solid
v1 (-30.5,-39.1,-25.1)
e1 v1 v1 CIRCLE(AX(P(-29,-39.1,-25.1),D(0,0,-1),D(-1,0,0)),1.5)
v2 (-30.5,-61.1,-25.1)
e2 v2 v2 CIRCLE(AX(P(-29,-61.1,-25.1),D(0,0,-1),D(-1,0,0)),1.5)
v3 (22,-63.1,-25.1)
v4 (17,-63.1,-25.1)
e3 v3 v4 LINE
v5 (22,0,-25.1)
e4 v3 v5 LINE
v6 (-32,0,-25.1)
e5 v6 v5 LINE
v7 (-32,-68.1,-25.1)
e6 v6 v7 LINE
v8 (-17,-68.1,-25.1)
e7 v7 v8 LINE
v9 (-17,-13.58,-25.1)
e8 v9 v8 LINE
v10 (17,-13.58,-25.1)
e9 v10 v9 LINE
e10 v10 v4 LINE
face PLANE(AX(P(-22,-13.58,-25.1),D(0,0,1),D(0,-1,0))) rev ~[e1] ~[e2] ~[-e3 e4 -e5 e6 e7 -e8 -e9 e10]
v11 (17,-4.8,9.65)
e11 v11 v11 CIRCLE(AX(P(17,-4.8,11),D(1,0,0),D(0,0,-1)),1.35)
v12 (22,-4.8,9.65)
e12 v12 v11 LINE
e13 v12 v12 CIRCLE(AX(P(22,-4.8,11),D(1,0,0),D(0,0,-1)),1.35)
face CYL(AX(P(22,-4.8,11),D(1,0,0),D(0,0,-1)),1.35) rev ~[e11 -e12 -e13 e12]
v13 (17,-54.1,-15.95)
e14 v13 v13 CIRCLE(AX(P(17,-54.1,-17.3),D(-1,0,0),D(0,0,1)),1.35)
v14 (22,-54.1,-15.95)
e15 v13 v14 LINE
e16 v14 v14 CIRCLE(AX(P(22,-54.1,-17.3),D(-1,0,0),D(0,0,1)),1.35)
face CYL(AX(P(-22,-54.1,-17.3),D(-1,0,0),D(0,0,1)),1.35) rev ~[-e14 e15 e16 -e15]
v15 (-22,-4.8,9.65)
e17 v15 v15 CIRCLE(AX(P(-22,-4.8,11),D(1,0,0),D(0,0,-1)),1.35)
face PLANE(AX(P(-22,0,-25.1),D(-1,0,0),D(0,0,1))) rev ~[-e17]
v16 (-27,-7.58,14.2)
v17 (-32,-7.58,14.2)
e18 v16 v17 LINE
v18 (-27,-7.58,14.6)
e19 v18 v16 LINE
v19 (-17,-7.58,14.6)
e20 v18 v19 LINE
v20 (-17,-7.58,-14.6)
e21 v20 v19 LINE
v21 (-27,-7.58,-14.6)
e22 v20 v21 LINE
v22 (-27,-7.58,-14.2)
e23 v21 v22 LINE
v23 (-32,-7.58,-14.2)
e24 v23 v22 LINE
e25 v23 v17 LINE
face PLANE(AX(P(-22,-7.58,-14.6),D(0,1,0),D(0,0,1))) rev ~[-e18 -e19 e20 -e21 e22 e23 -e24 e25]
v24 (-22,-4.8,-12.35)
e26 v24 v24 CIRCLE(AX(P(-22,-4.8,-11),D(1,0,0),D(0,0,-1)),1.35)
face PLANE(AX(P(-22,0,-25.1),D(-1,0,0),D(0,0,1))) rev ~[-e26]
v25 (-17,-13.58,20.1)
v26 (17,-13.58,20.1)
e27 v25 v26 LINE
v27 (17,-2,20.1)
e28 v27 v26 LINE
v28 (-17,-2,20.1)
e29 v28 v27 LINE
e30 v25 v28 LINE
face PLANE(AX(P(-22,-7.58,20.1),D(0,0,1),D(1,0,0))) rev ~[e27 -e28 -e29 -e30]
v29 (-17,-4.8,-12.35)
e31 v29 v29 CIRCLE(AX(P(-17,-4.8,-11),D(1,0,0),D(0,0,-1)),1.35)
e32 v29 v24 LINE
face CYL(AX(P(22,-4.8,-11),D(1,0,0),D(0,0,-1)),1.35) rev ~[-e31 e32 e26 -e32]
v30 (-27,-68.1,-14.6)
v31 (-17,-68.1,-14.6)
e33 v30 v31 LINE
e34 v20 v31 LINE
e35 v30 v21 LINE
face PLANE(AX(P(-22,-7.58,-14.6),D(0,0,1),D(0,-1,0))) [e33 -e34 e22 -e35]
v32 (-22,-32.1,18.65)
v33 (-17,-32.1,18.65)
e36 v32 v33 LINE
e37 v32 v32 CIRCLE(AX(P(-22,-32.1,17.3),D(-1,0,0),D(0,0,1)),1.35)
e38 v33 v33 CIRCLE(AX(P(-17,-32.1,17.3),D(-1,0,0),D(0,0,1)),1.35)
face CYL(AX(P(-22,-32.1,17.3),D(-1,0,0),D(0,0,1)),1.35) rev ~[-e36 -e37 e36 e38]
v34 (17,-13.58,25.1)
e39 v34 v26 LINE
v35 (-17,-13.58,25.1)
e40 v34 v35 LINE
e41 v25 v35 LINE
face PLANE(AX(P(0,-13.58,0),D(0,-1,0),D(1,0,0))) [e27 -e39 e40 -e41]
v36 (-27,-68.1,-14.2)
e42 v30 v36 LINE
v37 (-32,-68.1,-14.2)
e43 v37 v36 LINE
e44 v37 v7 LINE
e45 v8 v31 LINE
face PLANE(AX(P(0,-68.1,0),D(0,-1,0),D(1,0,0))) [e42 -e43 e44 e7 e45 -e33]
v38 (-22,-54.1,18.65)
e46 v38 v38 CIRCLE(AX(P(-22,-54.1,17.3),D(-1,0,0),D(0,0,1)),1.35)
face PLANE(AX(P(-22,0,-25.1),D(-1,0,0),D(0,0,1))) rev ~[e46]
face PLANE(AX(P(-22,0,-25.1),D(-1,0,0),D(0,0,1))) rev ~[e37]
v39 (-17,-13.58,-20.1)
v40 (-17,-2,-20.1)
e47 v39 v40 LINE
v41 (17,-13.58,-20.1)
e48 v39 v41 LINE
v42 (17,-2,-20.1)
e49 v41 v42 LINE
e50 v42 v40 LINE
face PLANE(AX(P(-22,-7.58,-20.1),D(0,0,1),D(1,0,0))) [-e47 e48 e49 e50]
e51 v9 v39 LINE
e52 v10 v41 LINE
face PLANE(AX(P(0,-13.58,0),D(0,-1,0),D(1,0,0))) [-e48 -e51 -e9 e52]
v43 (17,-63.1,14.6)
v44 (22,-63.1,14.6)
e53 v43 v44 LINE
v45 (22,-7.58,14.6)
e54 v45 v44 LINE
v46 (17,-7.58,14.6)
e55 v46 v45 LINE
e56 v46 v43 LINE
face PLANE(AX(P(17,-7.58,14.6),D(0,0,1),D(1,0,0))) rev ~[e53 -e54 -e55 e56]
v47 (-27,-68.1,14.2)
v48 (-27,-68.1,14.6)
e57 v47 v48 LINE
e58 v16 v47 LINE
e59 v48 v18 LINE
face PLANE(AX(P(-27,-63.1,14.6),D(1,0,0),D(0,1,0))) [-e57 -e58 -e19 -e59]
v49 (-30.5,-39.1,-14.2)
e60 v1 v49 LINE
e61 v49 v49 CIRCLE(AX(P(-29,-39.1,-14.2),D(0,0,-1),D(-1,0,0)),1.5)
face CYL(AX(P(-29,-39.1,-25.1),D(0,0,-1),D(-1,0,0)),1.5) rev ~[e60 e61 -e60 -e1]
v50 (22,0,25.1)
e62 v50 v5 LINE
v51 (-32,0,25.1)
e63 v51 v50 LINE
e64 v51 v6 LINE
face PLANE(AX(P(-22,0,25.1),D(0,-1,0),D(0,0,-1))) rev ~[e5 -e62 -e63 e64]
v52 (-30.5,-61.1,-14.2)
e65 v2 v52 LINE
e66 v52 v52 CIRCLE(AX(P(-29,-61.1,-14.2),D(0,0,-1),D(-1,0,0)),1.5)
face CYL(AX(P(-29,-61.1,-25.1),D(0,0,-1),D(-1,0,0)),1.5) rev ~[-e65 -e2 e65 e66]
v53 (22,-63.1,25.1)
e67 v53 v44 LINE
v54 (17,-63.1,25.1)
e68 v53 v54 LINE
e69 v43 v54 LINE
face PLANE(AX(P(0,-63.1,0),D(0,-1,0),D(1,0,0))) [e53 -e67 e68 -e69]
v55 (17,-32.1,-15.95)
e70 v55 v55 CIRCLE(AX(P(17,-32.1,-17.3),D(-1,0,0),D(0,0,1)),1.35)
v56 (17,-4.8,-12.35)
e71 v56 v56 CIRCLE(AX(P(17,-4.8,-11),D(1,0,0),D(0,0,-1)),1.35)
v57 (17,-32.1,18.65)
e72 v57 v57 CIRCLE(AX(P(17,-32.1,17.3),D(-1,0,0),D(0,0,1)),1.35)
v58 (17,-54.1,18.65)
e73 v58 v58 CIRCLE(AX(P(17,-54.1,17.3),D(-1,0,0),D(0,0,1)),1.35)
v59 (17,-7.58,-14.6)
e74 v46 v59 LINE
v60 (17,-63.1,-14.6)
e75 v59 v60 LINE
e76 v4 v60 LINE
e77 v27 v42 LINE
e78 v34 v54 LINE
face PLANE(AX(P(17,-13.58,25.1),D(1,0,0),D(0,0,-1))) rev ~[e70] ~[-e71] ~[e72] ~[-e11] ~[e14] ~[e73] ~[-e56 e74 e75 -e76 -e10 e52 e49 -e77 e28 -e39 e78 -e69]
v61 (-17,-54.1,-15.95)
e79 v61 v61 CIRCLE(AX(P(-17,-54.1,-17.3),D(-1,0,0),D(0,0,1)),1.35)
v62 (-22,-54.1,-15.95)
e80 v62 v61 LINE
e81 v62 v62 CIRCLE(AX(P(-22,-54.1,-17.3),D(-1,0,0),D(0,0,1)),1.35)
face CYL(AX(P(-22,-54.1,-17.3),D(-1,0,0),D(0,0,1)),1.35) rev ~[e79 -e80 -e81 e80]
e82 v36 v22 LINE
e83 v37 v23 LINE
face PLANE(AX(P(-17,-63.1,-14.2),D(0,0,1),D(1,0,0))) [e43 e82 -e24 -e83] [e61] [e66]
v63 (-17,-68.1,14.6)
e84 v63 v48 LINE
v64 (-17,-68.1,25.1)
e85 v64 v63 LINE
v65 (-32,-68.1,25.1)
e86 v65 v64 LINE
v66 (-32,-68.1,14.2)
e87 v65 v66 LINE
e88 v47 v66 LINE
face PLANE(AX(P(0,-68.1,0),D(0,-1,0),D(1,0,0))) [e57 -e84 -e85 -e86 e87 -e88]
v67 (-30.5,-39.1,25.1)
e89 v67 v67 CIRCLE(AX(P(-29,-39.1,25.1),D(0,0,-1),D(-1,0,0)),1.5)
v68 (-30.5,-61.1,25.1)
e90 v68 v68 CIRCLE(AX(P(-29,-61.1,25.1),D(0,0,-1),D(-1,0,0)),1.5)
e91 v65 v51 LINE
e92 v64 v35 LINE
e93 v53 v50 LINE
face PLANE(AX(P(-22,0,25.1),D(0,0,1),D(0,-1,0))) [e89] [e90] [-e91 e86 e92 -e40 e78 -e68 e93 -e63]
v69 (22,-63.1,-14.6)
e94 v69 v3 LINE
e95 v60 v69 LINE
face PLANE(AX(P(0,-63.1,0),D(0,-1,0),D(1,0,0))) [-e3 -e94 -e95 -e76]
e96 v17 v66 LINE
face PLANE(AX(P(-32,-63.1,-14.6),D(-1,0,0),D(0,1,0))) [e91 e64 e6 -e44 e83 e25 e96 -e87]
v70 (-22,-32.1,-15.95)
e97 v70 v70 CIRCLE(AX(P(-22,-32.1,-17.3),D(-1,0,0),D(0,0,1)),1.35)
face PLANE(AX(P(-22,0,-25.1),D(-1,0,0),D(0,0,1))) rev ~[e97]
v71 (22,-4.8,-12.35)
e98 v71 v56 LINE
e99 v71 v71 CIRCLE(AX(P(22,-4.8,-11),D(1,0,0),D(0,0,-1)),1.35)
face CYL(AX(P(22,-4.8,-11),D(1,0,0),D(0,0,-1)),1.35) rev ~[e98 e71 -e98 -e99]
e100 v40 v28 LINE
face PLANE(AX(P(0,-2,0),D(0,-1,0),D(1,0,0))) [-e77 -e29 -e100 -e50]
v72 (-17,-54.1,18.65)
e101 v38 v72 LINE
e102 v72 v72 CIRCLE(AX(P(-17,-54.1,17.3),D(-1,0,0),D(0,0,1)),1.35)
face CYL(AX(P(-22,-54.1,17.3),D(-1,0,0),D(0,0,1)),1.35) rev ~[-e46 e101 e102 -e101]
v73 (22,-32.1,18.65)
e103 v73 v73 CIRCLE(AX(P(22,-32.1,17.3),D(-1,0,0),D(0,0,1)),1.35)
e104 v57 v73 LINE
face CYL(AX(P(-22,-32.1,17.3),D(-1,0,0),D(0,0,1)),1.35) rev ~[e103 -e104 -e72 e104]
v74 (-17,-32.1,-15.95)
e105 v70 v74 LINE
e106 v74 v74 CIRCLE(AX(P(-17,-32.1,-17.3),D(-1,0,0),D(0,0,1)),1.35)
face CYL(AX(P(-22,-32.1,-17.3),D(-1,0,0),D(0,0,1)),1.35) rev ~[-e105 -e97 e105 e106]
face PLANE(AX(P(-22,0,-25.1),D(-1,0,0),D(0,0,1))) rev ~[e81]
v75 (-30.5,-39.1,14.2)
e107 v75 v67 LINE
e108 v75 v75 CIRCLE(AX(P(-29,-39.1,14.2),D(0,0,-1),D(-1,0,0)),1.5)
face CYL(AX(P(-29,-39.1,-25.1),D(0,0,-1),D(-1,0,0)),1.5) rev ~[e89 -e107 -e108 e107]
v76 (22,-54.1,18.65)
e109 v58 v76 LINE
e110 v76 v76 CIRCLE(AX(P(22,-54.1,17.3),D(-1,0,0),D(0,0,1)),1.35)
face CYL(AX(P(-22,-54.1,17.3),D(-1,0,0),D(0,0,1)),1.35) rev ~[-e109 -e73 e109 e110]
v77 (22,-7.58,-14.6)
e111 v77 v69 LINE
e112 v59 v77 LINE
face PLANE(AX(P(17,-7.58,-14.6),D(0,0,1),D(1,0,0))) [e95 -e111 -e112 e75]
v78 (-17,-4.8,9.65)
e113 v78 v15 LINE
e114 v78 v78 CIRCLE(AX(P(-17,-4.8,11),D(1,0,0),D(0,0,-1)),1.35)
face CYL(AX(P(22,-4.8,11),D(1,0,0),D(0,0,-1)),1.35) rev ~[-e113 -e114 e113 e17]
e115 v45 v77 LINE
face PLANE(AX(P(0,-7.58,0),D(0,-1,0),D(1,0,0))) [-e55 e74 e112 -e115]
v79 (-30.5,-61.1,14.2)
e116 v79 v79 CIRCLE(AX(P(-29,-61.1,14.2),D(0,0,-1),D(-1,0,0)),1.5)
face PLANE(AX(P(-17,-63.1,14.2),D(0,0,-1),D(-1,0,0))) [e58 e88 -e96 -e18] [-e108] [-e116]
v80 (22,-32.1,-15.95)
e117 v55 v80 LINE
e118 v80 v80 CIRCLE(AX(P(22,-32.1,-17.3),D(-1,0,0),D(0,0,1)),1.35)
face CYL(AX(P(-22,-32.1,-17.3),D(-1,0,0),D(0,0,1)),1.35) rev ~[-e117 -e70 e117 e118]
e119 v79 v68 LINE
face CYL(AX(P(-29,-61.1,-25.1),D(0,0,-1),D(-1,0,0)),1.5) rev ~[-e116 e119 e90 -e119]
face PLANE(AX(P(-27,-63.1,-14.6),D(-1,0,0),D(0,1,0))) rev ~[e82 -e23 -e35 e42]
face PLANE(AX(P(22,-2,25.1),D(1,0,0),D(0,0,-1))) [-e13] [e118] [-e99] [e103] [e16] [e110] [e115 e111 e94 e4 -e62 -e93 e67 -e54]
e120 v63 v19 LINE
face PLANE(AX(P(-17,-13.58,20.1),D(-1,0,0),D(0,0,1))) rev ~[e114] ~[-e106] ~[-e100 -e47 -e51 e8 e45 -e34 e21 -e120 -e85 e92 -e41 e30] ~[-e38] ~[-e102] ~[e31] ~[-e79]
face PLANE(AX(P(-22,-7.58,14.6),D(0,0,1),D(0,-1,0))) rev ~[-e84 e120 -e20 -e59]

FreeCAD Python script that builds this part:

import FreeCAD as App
import Part
import Sketcher
from FreeCAD import Vector
Q = App.Units.Quantity

doc = App.newDocument("Part")
params = doc.addObject("Spreadsheet::Sheet", "Params")
for row, (alias, value) in enumerate([
    ("sketch1_width", "44 mm"),
    ("sketch1_height", "28 mm"),
    ("pad1_length", "5 mm"),
    ("sketch2_diameter", "3 mm"),
    ("pocket1_length", "60 mm"),
    ("sketch3_width", "44 mm"),
    ("sketch3_height", "50.2 mm"),
    ("pad2_length", "2 mm"),
    ("sketch4_width", "44 mm"),
    ("sketch4_height", "50.2 mm"),
    ("pad3_length", "5.58 mm"),
    ("sketch5_diameter", "2.7 mm"),
    ("pocket2_length", "90 mm"),
    ("sketch6_height", "5 mm"),
    ("sketch6_width", "44 mm"),
    ("pad4_length", "6 mm"),
    ("sketch7_height", "5.5 mm"),
    ("sketch7_width", "5 mm"),
    ("pad5_length", "55.52 mm"),
    ("sketch8_width", "5 mm"),
    ("pad6_length", "49.52 mm"),
    ("sketch9_diameter", "2.7 mm"),
    ("pocket3_length", "49.52 mm"),
    ("sketch10_width", "5 mm"),
    ("sketch10_height", "28 mm"),
    ("pocket4_length", "80 mm"),
    ("sketch11_width", "63.1 mm"),
    ("sketch11_height", "10.5 mm"),
    ("sketch11_height2", "29.2 mm"),
    ("sketch11_width2", "55.52 mm"),
    ("pad7_length", "10 mm"),
    ("sketch12_width", "5 mm"),
    ("sketch12_height", "55.52 mm"),
    ("pad8_length", "0.4 mm"),
    ("sketch13_width", "5 mm"),
    ("sketch13_height", "55.52 mm"),
    ("pad9_length", "0.4 mm"),
    ("sketch14_diameter", "3 mm"),
    ("pocket5_length", "100 mm"),
    ("sketch15_width", "5 mm"),
    ("sketch15_width2", "15 mm"),
    ("sketch15_height", "10.9 mm"),
    ("sketch15_height2", "10.5 mm"),
    ("pad10_length", "5 mm"),
], start=1):
    params.set(f"A{row}", alias)
    params.set(f"B{row}", "=" + value)
    params.setAlias(f"B{row}", alias)

body = doc.addObject("PartDesign::Body", "Body")

# Sketch on XZ plane
sketch1 = doc.addObject("Sketcher::SketchObject", "Sketch")
body.addObject(sketch1)
sketch1.AttachmentSupport = (doc.XZ_Plane, [""])
sketch1.MapMode = "FlatFace"
sketch1.addGeometry([
    Part.LineSegment(Vector(22, -14, 0), Vector(-22, -14, 0)),
    Part.LineSegment(Vector(-22, -14, 0), Vector(-22, 14, 0)),
    Part.LineSegment(Vector(-22, 14, 0), Vector(22, 14, 0)),
    Part.LineSegment(Vector(22, 14, 0), Vector(22, -14, 0)),
], False)
sketch1.addConstraint([
    Sketcher.Constraint("Coincident", 0, 2, 1, 1),
    Sketcher.Constraint("Coincident", 1, 2, 2, 1),
    Sketcher.Constraint("Coincident", 2, 2, 3, 1),
    Sketcher.Constraint("Coincident", 3, 2, 0, 1),
    Sketcher.Constraint("Horizontal", 0),
    Sketcher.Constraint("Vertical", 1),
    Sketcher.Constraint("Horizontal", 2),
    Sketcher.Constraint("Vertical", 3),
    Sketcher.Constraint("Symmetric", 0, 2, 2, 2, -1, 1),
    Sketcher.Constraint("DistanceX", 0, 2, 0, 1, Q("44 mm")),
    Sketcher.Constraint("DistanceY", 1, 1, 1, 2, Q("28 mm")),
])
sketch1.setExpression("Constraints[9]", "Params.sketch1_width")
sketch1.setExpression("Constraints[10]", "Params.sketch1_height")
pad1 = doc.addObject("PartDesign::Pad", "Pad")
body.addObject(pad1)
pad1.Profile = sketch1
pad1.setExpression("Length", "Params.pad1_length")
pad1.Reversed = True

# Sketch on XY plane
sketch2 = doc.addObject("Sketcher::SketchObject", "Sketch001")
body.addObject(sketch2)
sketch2.AttachmentSupport = (doc.XY_Plane, [""])
sketch2.MapMode = "FlatFace"
sketch2.AttachmentOffset = App.Placement(Vector(0, 0, 14), App.Rotation())
sketch2.addGeometry([
    Part.Circle(Vector(11, 3, 0), Vector(0, 0, 1), 1.5),
    Part.Circle(Vector(-11, 3, 0), Vector(0, 0, 1), 1.5),
], False)
sketch2.addConstraint([
    Sketcher.Constraint("Equal", 0, 1),
    Sketcher.Constraint("Symmetric", 0, 3, 1, 3, -2),
    Sketcher.Constraint("Diameter", 0, Q("3 mm")),
    Sketcher.Constraint("DistanceX", -1, 1, 0, 3, Q("11 mm")),
    Sketcher.Constraint("DistanceY", -1, 1, 0, 3, Q("3 mm")),
])
sketch2.setExpression("Constraints[2]", "Params.sketch2_diameter")
pocket1 = doc.addObject("PartDesign::Pocket", "Pocket")
body.addObject(pocket1)
pocket1.Profile = sketch2
pocket1.setExpression("Length", "Params.pocket1_length")

# Sketch on XZ plane
sketch3 = doc.addObject("Sketcher::SketchObject", "Sketch002")
body.addObject(sketch3)
sketch3.AttachmentSupport = (doc.XZ_Plane, [""])
sketch3.MapMode = "FlatFace"
sketch3.addGeometry([
    Part.LineSegment(Vector(-22, 25, 0), Vector(-22, -25, 0)),
    Part.LineSegment(Vector(-22, -25, 0), Vector(22, -25, 0)),
    Part.LineSegment(Vector(22, -25, 0), Vector(22, 25, 0)),
    Part.LineSegment(Vector(22, 25, 0), Vector(-22, 25, 0)),
], False)
sketch3.addConstraint([
    Sketcher.Constraint("Coincident", 0, 2, 1, 1),
    Sketcher.Constraint("Coincident", 1, 2, 2, 1),
    Sketcher.Constraint("Coincident", 2, 2, 3, 1),
    Sketcher.Constraint("Coincident", 3, 2, 0, 1),
    Sketcher.Constraint("Vertical", 0),
    Sketcher.Constraint("Horizontal", 1),
    Sketcher.Constraint("Vertical", 2),
    Sketcher.Constraint("Horizontal", 3),
    Sketcher.Constraint("Symmetric", 0, 2, 2, 2, -1, 1),
    Sketcher.Constraint("DistanceX", 1, 1, 1, 2, Q("44 mm")),
    Sketcher.Constraint("DistanceY", 0, 2, 0, 1, Q("50.2 mm")),
])
sketch3.setExpression("Constraints[9]", "Params.sketch3_width")
sketch3.setExpression("Constraints[10]", "Params.sketch3_height")
pad2 = doc.addObject("PartDesign::Pad", "Pad001")
body.addObject(pad2)
pad2.Profile = sketch3
pad2.setExpression("Length", "Params.pad2_length")

# Sketch on XZ plane
sketch4 = doc.addObject("Sketcher::SketchObject", "Sketch003")
body.addObject(sketch4)
sketch4.AttachmentSupport = (doc.XZ_Plane, [""])
sketch4.MapMode = "FlatFace"
sketch4.AttachmentOffset = App.Placement(Vector(0, 0, 2), App.Rotation())
sketch4.addGeometry([
    Part.LineSegment(Vector(22, 25, 0), Vector(-22, 25, 0)),  # 0
    Part.LineSegment(Vector(-22, 25, 0), Vector(-22, -25, 0)),  # 1
    Part.LineSegment(Vector(-22, -25, 0), Vector(22, -25, 0)),  # 2
    Part.LineSegment(Vector(22, -25, 0), Vector(22, 25, 0)),  # 3
    Part.LineSegment(Vector(-17, -20, 0), Vector(-17, 20, 0)),  # 4
    Part.LineSegment(Vector(-17, 20, 0), Vector(17, 20, 0)),  # 5
    Part.LineSegment(Vector(17, 20, 0), Vector(17, -20, 0)),  # 6
    Part.LineSegment(Vector(17, -20, 0), Vector(-17, -20, 0)),  # 7
], False)
sketch4.addConstraint([
    Sketcher.Constraint("Coincident", 0, 2, 1, 1),
    Sketcher.Constraint("Coincident", 1, 2, 2, 1),
    Sketcher.Constraint("Coincident", 2, 2, 3, 1),
    Sketcher.Constraint("Coincident", 3, 2, 0, 1),
    Sketcher.Constraint("Coincident", 4, 2, 5, 1),
    Sketcher.Constraint("Coincident", 5, 2, 6, 1),
    Sketcher.Constraint("Coincident", 6, 2, 7, 1),
    Sketcher.Constraint("Coincident", 7, 2, 4, 1),
    Sketcher.Constraint("Horizontal", 0),
    Sketcher.Constraint("Vertical", 1),
    Sketcher.Constraint("Horizontal", 2),
    Sketcher.Constraint("Vertical", 3),
    Sketcher.Constraint("Vertical", 4),
    Sketcher.Constraint("Horizontal", 5),
    Sketcher.Constraint("Vertical", 6),
    Sketcher.Constraint("Horizontal", 7),
    Sketcher.Constraint("Symmetric", 0, 2, 2, 2, -1, 1),
    Sketcher.Constraint("Symmetric", 4, 2, 6, 2, -1, 1),
    Sketcher.Constraint("DistanceX", 0, 2, 4, 2, Q("5 mm")),
    Sketcher.Constraint("DistanceY", 4, 2, 0, 2, Q("5 mm")),
    Sketcher.Constraint("DistanceX", 0, 2, 0, 1, Q("44 mm")),
    Sketcher.Constraint("DistanceY", 1, 2, 1, 1, Q("50.2 mm")),
])
sketch4.setExpression("Constraints[20]", "Params.sketch4_width")
sketch4.setExpression("Constraints[21]", "Params.sketch4_height")
pad3 = doc.addObject("PartDesign::Pad", "Pad002")
body.addObject(pad3)
pad3.Profile = sketch4
pad3.setExpression("Length", "Params.pad3_length")

# Sketch on YZ plane
sketch5 = doc.addObject("Sketcher::SketchObject", "Sketch004")
body.addObject(sketch5)
sketch5.AttachmentSupport = (doc.YZ_Plane, [""])
sketch5.MapMode = "FlatFace"
sketch5.AttachmentOffset = App.Placement(Vector(0, 0, 22), App.Rotation())
sketch5.addGeometry([
    Part.Circle(Vector(-4.8, -11, 0), Vector(0, 0, 1), 1.4),
    Part.Circle(Vector(-4.8, 11, 0), Vector(0, 0, 1), 1.4),
], False)
sketch5.addConstraint([
    Sketcher.Constraint("Equal", 0, 1),
    Sketcher.Constraint("Symmetric", 0, 3, 1, 3, -1),
    Sketcher.Constraint("Diameter", 0, Q("2.7 mm")),
    Sketcher.Constraint("DistanceY", 0, 3, -1, 1, Q("11 mm")),
    Sketcher.Constraint("DistanceX", 0, 3, -1, 1, Q("4.8 mm")),
])
sketch5.setExpression("Constraints[2]", "Params.sketch5_diameter")
pocket2 = doc.addObject("PartDesign::Pocket", "Pocket001")
body.addObject(pocket2)
pocket2.Profile = sketch5
pocket2.setExpression("Length", "Params.pocket2_length")

# Sketch on XZ plane
sketch6 = doc.addObject("Sketcher::SketchObject", "Sketch005")
body.addObject(sketch6)
sketch6.AttachmentSupport = (doc.XZ_Plane, [""])
sketch6.MapMode = "FlatFace"
sketch6.AttachmentOffset = App.Placement(Vector(0, 0, 7.58), App.Rotation())
sketch6.addGeometry([
    Part.LineSegment(Vector(-22, -25, 0), Vector(22, -25, 0)),  # 0
    Part.LineSegment(Vector(22, -25, 0), Vector(22, -20, 0)),  # 1
    Part.LineSegment(Vector(22, -20, 0), Vector(-22, -20, 0)),  # 2
    Part.LineSegment(Vector(-22, -20, 0), Vector(-22, -25, 0)),  # 3
    Part.LineSegment(Vector(22, 20, 0), Vector(22, 25, 0)),  # 4
    Part.LineSegment(Vector(22, 25, 0), Vector(-22, 25, 0)),  # 5
    Part.LineSegment(Vector(-22, 25, 0), Vector(-22, 20, 0)),  # 6
    Part.LineSegment(Vector(-22, 20, 0), Vector(22, 20, 0)),  # 7
], False)
sketch6.addConstraint([
    Sketcher.Constraint("Coincident", 0, 2, 1, 1),
    Sketcher.Constraint("Coincident", 1, 2, 2, 1),
    Sketcher.Constraint("Coincident", 2, 2, 3, 1),
    Sketcher.Constraint("Coincident", 3, 2, 0, 1),
    Sketcher.Constraint("Coincident", 4, 2, 5, 1),
    Sketcher.Constraint("Coincident", 5, 2, 6, 1),
    Sketcher.Constraint("Coincident", 6, 2, 7, 1),
    Sketcher.Constraint("Coincident", 7, 2, 4, 1),
    Sketcher.Constraint("Horizontal", 0),
    Sketcher.Constraint("Vertical", 1),
    Sketcher.Constraint("Horizontal", 2),
    Sketcher.Constraint("Vertical", 3),
    Sketcher.Constraint("Vertical", 4),
    Sketcher.Constraint("Horizontal", 5),
    Sketcher.Constraint("Vertical", 6),
    Sketcher.Constraint("Horizontal", 7),
    Sketcher.Constraint("Symmetric", 3, 2, 4, 2, -1, 1),
    Sketcher.Constraint("Symmetric", 1, 2, 6, 2, -1, 1),
    Sketcher.Constraint("Vertical", 1, 2, 4, 2),
    Sketcher.Constraint("DistanceY", 1, 1, 1, 2, Q("5 mm")),
    Sketcher.Constraint("DistanceX", 0, 1, 0, 2, Q("44 mm")),
    Sketcher.Constraint("DistanceY", 0, 2, -1, 1, Q("25.1 mm")),
])
sketch6.setExpression("Constraints[19]", "Params.sketch6_height")
sketch6.setExpression("Constraints[20]", "Params.sketch6_width")
pad4 = doc.addObject("PartDesign::Pad", "Pad003")
body.addObject(pad4)
pad4.Profile = sketch6
pad4.setExpression("Length", "Params.pad4_length")

# Sketch on XZ plane
sketch7 = doc.addObject("Sketcher::SketchObject", "Sketch006")
body.addObject(sketch7)
sketch7.AttachmentSupport = (doc.XZ_Plane, [""])
sketch7.MapMode = "FlatFace"
sketch7.AttachmentOffset = App.Placement(Vector(0, 0, 7.58), App.Rotation())
sketch7.addGeometry([
    Part.LineSegment(Vector(-22, -20, 0), Vector(-17, -20, 0)),  # 0
    Part.LineSegment(Vector(-17, -20, 0), Vector(-17, -15, 0)),  # 1
    Part.LineSegment(Vector(-17, -15, 0), Vector(-22, -15, 0)),  # 2
    Part.LineSegment(Vector(-22, -15, 0), Vector(-22, -20, 0)),  # 3
    Part.LineSegment(Vector(17, 20, 0), Vector(17, 15, 0)),  # 4
    Part.LineSegment(Vector(17, 15, 0), Vector(22, 15, 0)),  # 5
    Part.LineSegment(Vector(22, 15, 0), Vector(22, 20, 0)),  # 6
    Part.LineSegment(Vector(22, 20, 0), Vector(17, 20, 0)),  # 7
    Part.LineSegment(Vector(17, -20, 0), Vector(22, -20, 0)),  # 8
    Part.LineSegment(Vector(22, -20, 0), Vector(22, -15, 0)),  # 9
    Part.LineSegment(Vector(22, -15, 0), Vector(17, -15, 0)),  # 10
    Part.LineSegment(Vector(17, -15, 0), Vector(17, -20, 0)),  # 11
    Part.LineSegment(Vector(-17, 15, 0), Vector(-17, 20, 0)),  # 12
    Part.LineSegment(Vector(-17, 20, 0), Vector(-22, 20, 0)),  # 13
    Part.LineSegment(Vector(-22, 20, 0), Vector(-22, 15, 0)),  # 14
    Part.LineSegment(Vector(-22, 15, 0), Vector(-17, 15, 0)),  # 15
], False)
sketch7.addConstraint([
    Sketcher.Constraint("Coincident", 0, 2, 1, 1),
    Sketcher.Constraint("Coincident", 1, 2, 2, 1),
    Sketcher.Constraint("Coincident", 2, 2, 3, 1),
    Sketcher.Constraint("Coincident", 3, 2, 0, 1),
    Sketcher.Constraint("Coincident", 4, 2, 5, 1),
    Sketcher.Constraint("Coincident", 5, 2, 6, 1),
    Sketcher.Constraint("Coincident", 6, 2, 7, 1),
    Sketcher.Constraint("Coincident", 7, 2, 4, 1),
    Sketcher.Constraint("Coincident", 8, 2, 9, 1),
    Sketcher.Constraint("Coincident", 9, 2, 10, 1),
    Sketcher.Constraint("Coincident", 10, 2, 11, 1),
    Sketcher.Constraint("Coincident", 11, 2, 8, 1),
    Sketcher.Constraint("Coincident", 12, 2, 13, 1),
    Sketcher.Constraint("Coincident", 13, 2, 14, 1),
    Sketcher.Constraint("Coincident", 14, 2, 15, 1),
    Sketcher.Constraint("Coincident", 15, 2, 12, 1),
    Sketcher.Constraint("Horizontal", 0),
    Sketcher.Constraint("Vertical", 1),
    Sketcher.Constraint("Horizontal", 2),
    Sketcher.Constraint("Vertical", 3),
    Sketcher.Constraint("Vertical", 4),
    Sketcher.Constraint("Horizontal", 5),
    Sketcher.Constraint("Vertical", 6),
    Sketcher.Constraint("Horizontal", 7),
    Sketcher.Constraint("Horizontal", 8),
    Sketcher.Constraint("Vertical", 9),
    Sketcher.Constraint("Horizontal", 10),
    Sketcher.Constraint("Vertical", 11),
    Sketcher.Constraint("Vertical", 12),
    Sketcher.Constraint("Horizontal", 13),
    Sketcher.Constraint("Vertical", 14),
    Sketcher.Constraint("Horizontal", 15),
    Sketcher.Constraint("Symmetric", 1, 2, 4, 2, -1, 1),
    Sketcher.Constraint("Symmetric", 3, 2, 6, 2, -1, 1),
    Sketcher.Constraint("Symmetric", 11, 2, 12, 2, -1, 1),
    Sketcher.Constraint("Symmetric", 9, 2, 14, 2, -1, 1),
    Sketcher.Constraint("Symmetric", 3, 2, 8, 2, -2),
    Sketcher.Constraint("Symmetric", 1, 2, 10, 2, -2),
    Sketcher.Constraint("DistanceY", 1, 1, 1, 2, Q("5.5 mm")),
    Sketcher.Constraint("DistanceX", 0, 1, 0, 2, Q("5 mm")),
    Sketcher.Constraint("DistanceX", 0, 2, -1, 1, Q("17 mm")),
    Sketcher.Constraint("DistanceY", 0, 2, -1, 1, Q("20.1 mm")),
])
sketch7.setExpression("Constraints[38]", "Params.sketch7_height")
sketch7.setExpression("Constraints[39]", "Params.sketch7_width")
pad5 = doc.addObject("PartDesign::Pad", "Pad004")
body.addObject(pad5)
pad5.Profile = sketch7
pad5.setExpression("Length", "Params.pad5_length")

# Sketch on XZ plane
sketch8 = doc.addObject("Sketcher::SketchObject", "Sketch007")
body.addObject(sketch8)
sketch8.AttachmentSupport = (doc.XZ_Plane, [""])
sketch8.MapMode = "FlatFace"
sketch8.AttachmentOffset = App.Placement(Vector(0, 0, 13.58), App.Rotation())
sketch8.addGeometry([
    Part.LineSegment(Vector(-17, -20, 0), Vector(-22, -20, 0)),  # 0
    Part.LineSegment(Vector(-22, -20, 0), Vector(-22, -25, 0)),  # 1
    Part.LineSegment(Vector(-22, -25, 0), Vector(-17, -25, 0)),  # 2
    Part.LineSegment(Vector(-17, -25, 0), Vector(-17, -20, 0)),  # 3
    Part.LineSegment(Vector(-17, 20, 0), Vector(-17, 25, 0)),  # 4
    Part.LineSegment(Vector(-17, 25, 0), Vector(-22, 25, 0)),  # 5
    Part.LineSegment(Vector(-22, 25, 0), Vector(-22, 20, 0)),  # 6
    Part.LineSegment(Vector(-22, 20, 0), Vector(-17, 20, 0)),  # 7
    Part.LineSegment(Vector(17, 25, 0), Vector(17, 20, 0)),  # 8
    Part.LineSegment(Vector(17, 20, 0), Vector(22, 20, 0)),  # 9
    Part.LineSegment(Vector(22, 20, 0), Vector(22, 25, 0)),  # 10
    Part.LineSegment(Vector(22, 25, 0), Vector(17, 25, 0)),  # 11
    Part.LineSegment(Vector(22, -20, 0), Vector(17, -20, 0)),  # 12
    Part.LineSegment(Vector(17, -20, 0), Vector(17, -25, 0)),  # 13
    Part.LineSegment(Vector(17, -25, 0), Vector(22, -25, 0)),  # 14
    Part.LineSegment(Vector(22, -25, 0), Vector(22, -20, 0)),  # 15
], False)
sketch8.addConstraint([
    Sketcher.Constraint("Coincident", 0, 2, 1, 1),
    Sketcher.Constraint("Coincident", 1, 2, 2, 1),
    Sketcher.Constraint("Coincident", 2, 2, 3, 1),
    Sketcher.Constraint("Coincident", 3, 2, 0, 1),
    Sketcher.Constraint("Coincident", 4, 2, 5, 1),
    Sketcher.Constraint("Coincident", 5, 2, 6, 1),
    Sketcher.Constraint("Coincident", 6, 2, 7, 1),
    Sketcher.Constraint("Coincident", 7, 2, 4, 1),
    Sketcher.Constraint("Coincident", 8, 2, 9, 1),
    Sketcher.Constraint("Coincident", 9, 2, 10, 1),
    Sketcher.Constraint("Coincident", 10, 2, 11, 1),
    Sketcher.Constraint("Coincident", 11, 2, 8, 1),
    Sketcher.Constraint("Coincident", 12, 2, 13, 1),
    Sketcher.Constraint("Coincident", 13, 2, 14, 1),
    Sketcher.Constraint("Coincident", 14, 2, 15, 1),
    Sketcher.Constraint("Coincident", 15, 2, 12, 1),
    Sketcher.Constraint("Horizontal", 0),
    Sketcher.Constraint("Vertical", 1),
    Sketcher.Constraint("Horizontal", 2),
    Sketcher.Constraint("Vertical", 3),
    Sketcher.Constraint("Vertical", 4),
    Sketcher.Constraint("Horizontal", 5),
    Sketcher.Constraint("Vertical", 6),
    Sketcher.Constraint("Horizontal", 7),
    Sketcher.Constraint("Vertical", 8),
    Sketcher.Constraint("Horizontal", 9),
    Sketcher.Constraint("Vertical", 10),
    Sketcher.Constraint("Horizontal", 11),
    Sketcher.Constraint("Horizontal", 12),
    Sketcher.Constraint("Vertical", 13),
    Sketcher.Constraint("Horizontal", 14),
    Sketcher.Constraint("Vertical", 15),
    Sketcher.Constraint("Symmetric", 3, 2, 8, 2, -1, 1),
    Sketcher.Constraint("Symmetric", 1, 2, 10, 2, -1, 1),
    Sketcher.Constraint("Symmetric", 7, 2, 12, 2, -1, 1),
    Sketcher.Constraint("Symmetric", 5, 2, 14, 2, -1, 1),
    Sketcher.Constraint("Symmetric", 7, 2, 8, 2, -2),
    Sketcher.Constraint("Symmetric", 5, 2, 10, 2, -2),
    Sketcher.Constraint("Equal", 14, 1),
    Sketcher.Constraint("DistanceX", 0, 2, 0, 1, Q("5 mm")),
    Sketcher.Constraint("DistanceX", 0, 2, -1, 1, Q("22 mm")),
    Sketcher.Constraint("DistanceY", 0, 2, -1, 1, Q("20.1 mm")),
])
sketch8.setExpression("Constraints[39]", "Params.sketch8_width")
pad6 = doc.addObject("PartDesign::Pad", "Pad005")
body.addObject(pad6)
pad6.Profile = sketch8
pad6.setExpression("Length", "Params.pad6_length")

# Sketch on YZ plane
sketch9 = doc.addObject("Sketcher::SketchObject", "Sketch008")
body.addObject(sketch9)
sketch9.AttachmentSupport = (doc.YZ_Plane, [""])
sketch9.MapMode = "FlatFace"
sketch9.AttachmentOffset = App.Placement(Vector(0, 0, -22), App.Rotation())
sketch9.addGeometry([
    Part.Circle(Vector(-54.1, 17.3, 0), Vector(0, 0, 1), 1.4),
    Part.Circle(Vector(-54.1, -17.3, 0), Vector(0, 0, 1), 1.4),
    Part.Circle(Vector(-32.1, 17.3, 0), Vector(0, 0, 1), 1.4),
    Part.Circle(Vector(-32.1, -17.3, 0), Vector(0, 0, 1), 1.4),
], False)
sketch9.addConstraint([
    Sketcher.Constraint("Equal", 0, 1),
    Sketcher.Constraint("Equal", 1, 2),
    Sketcher.Constraint("Equal", 2, 3),
    Sketcher.Constraint("Symmetric", 0, 3, 1, 3, -1),
    Sketcher.Constraint("Symmetric", 2, 3, 3, 3, -1),
    Sketcher.Constraint("Horizontal", 0, 3, 2, 3),
    Sketcher.Constraint("Diameter", 0, Q("2.7 mm")),
    Sketcher.Constraint("DistanceX", 0, 3, 2, 3, Q("22 mm")),
    Sketcher.Constraint("DistanceX", 0, 3, -1, 1, Q("54.1 mm")),
    Sketcher.Constraint("DistanceY", -1, 1, 0, 3, Q("17.3 mm")),
])
sketch9.setExpression("Constraints[6]", "Params.sketch9_diameter")
pocket3 = doc.addObject("PartDesign::Pocket", "Pocket002")
body.addObject(pocket3)
pocket3.Profile = sketch9
pocket3.setExpression("Length", "Params.pocket3_length")
pocket3.Reversed = True

# Sketch on YZ plane
sketch10 = doc.addObject("Sketcher::SketchObject", "Sketch009")
body.addObject(sketch10)
sketch10.AttachmentSupport = (doc.YZ_Plane, [""])
sketch10.MapMode = "FlatFace"
sketch10.AttachmentOffset = App.Placement(Vector(0, 0, -22), App.Rotation())
sketch10.addGeometry([
    Part.LineSegment(Vector(0, 14, 0), Vector(5, 14, 0)),
    Part.LineSegment(Vector(5, 14, 0), Vector(5, -14, 0)),
    Part.LineSegment(Vector(5, -14, 0), Vector(0, -14, 0)),
    Part.LineSegment(Vector(0, -14, 0), Vector(0, 14, 0)),
], False)
sketch10.addConstraint([
    Sketcher.Constraint("Coincident", 0, 2, 1, 1),
    Sketcher.Constraint("Coincident", 1, 2, 2, 1),
    Sketcher.Constraint("Coincident", 2, 2, 3, 1),
    Sketcher.Constraint("Coincident", 3, 2, 0, 1),
    Sketcher.Constraint("Horizontal", 0),
    Sketcher.Constraint("Vertical", 1),
    Sketcher.Constraint("Horizontal", 2),
    Sketcher.Constraint("Vertical", 3),
    Sketcher.Constraint("Symmetric", 2, 2, 3, 2, -1, 1),
    Sketcher.Constraint("DistanceX", 0, 1, 0, 2, Q("5 mm")),
    Sketcher.Constraint("DistanceY", 1, 2, 1, 1, Q("28 mm")),
])
sketch10.setExpression("Constraints[9]", "Params.sketch10_width")
sketch10.setExpression("Constraints[10]", "Params.sketch10_height")
pocket4 = doc.addObject("PartDesign::Pocket", "Pocket003")
body.addObject(pocket4)
pocket4.Profile = sketch10
pocket4.setExpression("Length", "Params.pocket4_length")
pocket4.Reversed = True

# Sketch on YZ plane
sketch11 = doc.addObject("Sketcher::SketchObject", "Sketch010")
body.addObject(sketch11)
sketch11.AttachmentSupport = (doc.YZ_Plane, [""])
sketch11.MapMode = "FlatFace"
sketch11.AttachmentOffset = App.Placement(Vector(0, 0, -22), App.Rotation())
sketch11.addGeometry([
    Part.LineSegment(Vector(0, -25, 0), Vector(-63, -25, 0)),  # 0
    Part.LineSegment(Vector(-63, -25, 0), Vector(-63, -15, 0)),  # 1
    Part.LineSegment(Vector(-63, -15, 0), Vector(-8, -15, 0)),  # 2
    Part.LineSegment(Vector(-8, -15, 0), Vector(-8, 15, 0)),  # 3
    Part.LineSegment(Vector(-8, 15, 0), Vector(-63, 15, 0)),  # 4
    Part.LineSegment(Vector(-63, 15, 0), Vector(-63, 25, 0)),  # 5
    Part.LineSegment(Vector(-63, 25, 0), Vector(0, 25, 0)),  # 6
    Part.LineSegment(Vector(0, 25, 0), Vector(0, -25, 0)),  # 7
], False)
sketch11.addConstraint([
    Sketcher.Constraint("Coincident", 0, 2, 1, 1),
    Sketcher.Constraint("Coincident", 1, 2, 2, 1),
    Sketcher.Constraint("Coincident", 2, 2, 3, 1),
    Sketcher.Constraint("Coincident", 3, 2, 4, 1),
    Sketcher.Constraint("Coincident", 4, 2, 5, 1),
    Sketcher.Constraint("Coincident", 5, 2, 6, 1),
    Sketcher.Constraint("Coincident", 6, 2, 7, 1),
    Sketcher.Constraint("Coincident", 7, 2, 0, 1),
    Sketcher.Constraint("Horizontal", 0),
    Sketcher.Constraint("Vertical", 1),
    Sketcher.Constraint("Horizontal", 2),
    Sketcher.Constraint("Vertical", 3),
    Sketcher.Constraint("Horizontal", 4),
    Sketcher.Constraint("Vertical", 5),
    Sketcher.Constraint("Horizontal", 6),
    Sketcher.Constraint("Vertical", 7),
    Sketcher.Constraint("Symmetric", 6, 2, 7, 2, -1, 1),
    Sketcher.Constraint("Symmetric", 1, 2, 4, 2, -1),
    Sketcher.Constraint("DistanceX", 0, 2, 0, 1, Q("63.1 mm")),
    Sketcher.Constraint("DistanceY", 1, 1, 1, 2, Q("10.5 mm")),
    Sketcher.Constraint("DistanceY", 3, 1, 3, 2, Q("29.2 mm")),
    Sketcher.Constraint("DistanceX", 2, 1, 2, 2, Q("55.52 mm")),
])
sketch11.setExpression("Constraints[18]", "Params.sketch11_width")
sketch11.setExpression("Constraints[19]", "Params.sketch11_height")
sketch11.setExpression("Constraints[20]", "Params.sketch11_height2")
sketch11.setExpression("Constraints[21]", "Params.sketch11_width2")
pad7 = doc.addObject("PartDesign::Pad", "Pad006")
body.addObject(pad7)
pad7.Profile = sketch11
pad7.setExpression("Length", "Params.pad7_length")
pad7.Reversed = True

# Sketch on XY plane
sketch12 = doc.addObject("Sketcher::SketchObject", "Sketch011")
body.addObject(sketch12)
sketch12.AttachmentSupport = (doc.XY_Plane, [""])
sketch12.MapMode = "FlatFace"
sketch12.AttachmentOffset = App.Placement(Vector(0, 0, 14.6), App.Rotation())
sketch12.addGeometry([
    Part.LineSegment(Vector(-32, -63, 0), Vector(-32, -8, 0)),
    Part.LineSegment(Vector(-32, -8, 0), Vector(-27, -8, 0)),
    Part.LineSegment(Vector(-27, -8, 0), Vector(-27, -63, 0)),
    Part.LineSegment(Vector(-27, -63, 0), Vector(-32, -63, 0)),
], False)
sketch12.addConstraint([
    Sketcher.Constraint("Coincident", 0, 2, 1, 1),
    Sketcher.Constraint("Coincident", 1, 2, 2, 1),
    Sketcher.Constraint("Coincident", 2, 2, 3, 1),
    Sketcher.Constraint("Coincident", 3, 2, 0, 1),
    Sketcher.Constraint("Vertical", 0),
    Sketcher.Constraint("Horizontal", 1),
    Sketcher.Constraint("Vertical", 2),
    Sketcher.Constraint("Horizontal", 3),
    Sketcher.Constraint("DistanceX", 1, 1, 1, 2, Q("5 mm")),
    Sketcher.Constraint("DistanceX", 0, 2, -1, 1, Q("32 mm")),
    Sketcher.Constraint("DistanceY", 0, 1, 0, 2, Q("55.52 mm")),
    Sketcher.Constraint("DistanceY", 2, 2, -1, 1, Q("63.1 mm")),
])
sketch12.setExpression("Constraints[8]", "Params.sketch12_width")
sketch12.setExpression("Constraints[10]", "Params.sketch12_height")
pad8 = doc.addObject("PartDesign::Pad", "Pad007")
body.addObject(pad8)
pad8.Profile = sketch12
pad8.setExpression("Length", "Params.pad8_length")
pad8.Reversed = True

# Sketch on XY plane
sketch13 = doc.addObject("Sketcher::SketchObject", "Sketch012")
body.addObject(sketch13)
sketch13.AttachmentSupport = (doc.XY_Plane, [""])
sketch13.MapMode = "FlatFace"
sketch13.AttachmentOffset = App.Placement(Vector(0, 0, -14.6), App.Rotation())
sketch13.addGeometry([
    Part.LineSegment(Vector(-32, -8, 0), Vector(-32, -63, 0)),
    Part.LineSegment(Vector(-32, -63, 0), Vector(-27, -63, 0)),
    Part.LineSegment(Vector(-27, -63, 0), Vector(-27, -8, 0)),
    Part.LineSegment(Vector(-27, -8, 0), Vector(-32, -8, 0)),
], False)
sketch13.addConstraint([
    Sketcher.Constraint("Coincident", 0, 2, 1, 1),
    Sketcher.Constraint("Coincident", 1, 2, 2, 1),
    Sketcher.Constraint("Coincident", 2, 2, 3, 1),
    Sketcher.Constraint("Coincident", 3, 2, 0, 1),
    Sketcher.Constraint("Vertical", 0),
    Sketcher.Constraint("Horizontal", 1),
    Sketcher.Constraint("Vertical", 2),
    Sketcher.Constraint("Horizontal", 3),
    Sketcher.Constraint("DistanceX", 1, 1, 1, 2, Q("5 mm")),
    Sketcher.Constraint("DistanceX", 0, 2, -1, 1, Q("32 mm")),
    Sketcher.Constraint("DistanceY", 0, 2, 0, 1, Q("55.52 mm")),
    Sketcher.Constraint("DistanceY", 0, 2, -1, 1, Q("63.1 mm")),
])
sketch13.setExpression("Constraints[8]", "Params.sketch13_width")
sketch13.setExpression("Constraints[10]", "Params.sketch13_height")
pad9 = doc.addObject("PartDesign::Pad", "Pad008")
body.addObject(pad9)
pad9.Profile = sketch13
pad9.setExpression("Length", "Params.pad9_length")

# Sketch on XY plane
sketch14 = doc.addObject("Sketcher::SketchObject", "Sketch013")
body.addObject(sketch14)
sketch14.AttachmentSupport = (doc.XY_Plane, [""])
sketch14.MapMode = "FlatFace"
sketch14.AttachmentOffset = App.Placement(Vector(0, 0, -25.1), App.Rotation())
sketch14.addGeometry([
    Part.Circle(Vector(-29, -61.1, 0), Vector(0, 0, 1), 1.5),
    Part.Circle(Vector(-29, -39.1, 0), Vector(0, 0, 1), 1.5),
], False)
sketch14.addConstraint([
    Sketcher.Constraint("Equal", 0, 1),
    Sketcher.Constraint("Vertical", 0, 3, 1, 3),
    Sketcher.Constraint("Diameter", 0, Q("3 mm")),
    Sketcher.Constraint("DistanceY", 0, 3, 1, 3, Q("22 mm")),
    Sketcher.Constraint("DistanceX", 0, 3, -1, 1, Q("29 mm")),
    Sketcher.Constraint("DistanceY", 0, 3, -1, 1, Q("61.1 mm")),
])
sketch14.setExpression("Constraints[2]", "Params.sketch14_diameter")
pocket5 = doc.addObject("PartDesign::Pocket", "Pocket004")
body.addObject(pocket5)
pocket5.Profile = sketch14
pocket5.setExpression("Length", "Params.pocket5_length")
pocket5.Reversed = True

# Sketch on XZ plane
sketch15 = doc.addObject("Sketcher::SketchObject", "Sketch014")
body.addObject(sketch15)
sketch15.AttachmentSupport = (doc.XZ_Plane, [""])
sketch15.MapMode = "FlatFace"
sketch15.AttachmentOffset = App.Placement(Vector(0, 0, 63.1), App.Rotation())
sketch15.addGeometry([
    Part.LineSegment(Vector(-27, -14.2, 0), Vector(-32, -14.2, 0)),  # 0
    Part.LineSegment(Vector(-32, -14.2, 0), Vector(-32, -25.1, 0)),  # 1
    Part.LineSegment(Vector(-32, -25.1, 0), Vector(-17, -25.1, 0)),  # 2
    Part.LineSegment(Vector(-17, -25.1, 0), Vector(-17, -14.6, 0)),  # 3
    Part.LineSegment(Vector(-17, -14.6, 0), Vector(-27, -14.6, 0)),  # 4
    Part.LineSegment(Vector(-27, -14.6, 0), Vector(-27, -14.2, 0)),  # 5
    Part.LineSegment(Vector(-17, 25.1, 0), Vector(-32, 25.1, 0)),  # 6
    Part.LineSegment(Vector(-32, 25.1, 0), Vector(-32, 14.2, 0)),  # 7
    Part.LineSegment(Vector(-32, 14.2, 0), Vector(-27, 14.2, 0)),  # 8
    Part.LineSegment(Vector(-27, 14.2, 0), Vector(-27, 14.6, 0)),  # 9
    Part.LineSegment(Vector(-27, 14.6, 0), Vector(-17, 14.6, 0)),  # 10
    Part.LineSegment(Vector(-17, 14.6, 0), Vector(-17, 25.1, 0)),  # 11
], False)
sketch15.addConstraint([
    Sketcher.Constraint("Coincident", 0, 2, 1, 1),
    Sketcher.Constraint("Coincident", 1, 2, 2, 1),
    Sketcher.Constraint("Coincident", 2, 2, 3, 1),
    Sketcher.Constraint("Coincident", 3, 2, 4, 1),
    Sketcher.Constraint("Coincident", 4, 2, 5, 1),
    Sketcher.Constraint("Coincident", 5, 2, 0, 1),
    Sketcher.Constraint("Coincident", 6, 2, 7, 1),
    Sketcher.Constraint("Coincident", 7, 2, 8, 1),
    Sketcher.Constraint("Coincident", 8, 2, 9, 1),
    Sketcher.Constraint("Coincident", 9, 2, 10, 1),
    Sketcher.Constraint("Coincident", 10, 2, 11, 1),
    Sketcher.Constraint("Coincident", 11, 2, 6, 1),
    Sketcher.Constraint("Horizontal", 0),
    Sketcher.Constraint("Vertical", 1),
    Sketcher.Constraint("Horizontal", 2),
    Sketcher.Constraint("Vertical", 3),
    Sketcher.Constraint("Horizontal", 4),
    Sketcher.Constraint("Vertical", 5),
    Sketcher.Constraint("Horizontal", 6),
    Sketcher.Constraint("Vertical", 7),
    Sketcher.Constraint("Horizontal", 8),
    Sketcher.Constraint("Vertical", 9),
    Sketcher.Constraint("Horizontal", 10),
    Sketcher.Constraint("Vertical", 11),
    Sketcher.Constraint("Symmetric", 1, 2, 6, 2, -1),
    Sketcher.Constraint("Symmetric", 5, 2, 8, 2, -1),
    Sketcher.Constraint("Symmetric", 3, 2, 10, 2, -1),
    Sketcher.Constraint("DistanceX", 0, 2, 0, 1, Q("5 mm")),
    Sketcher.Constraint("DistanceX", 2, 1, 2, 2, Q("15 mm")),
    Sketcher.Constraint("DistanceY", 1, 2, 1, 1, Q("10.9 mm")),
    Sketcher.Constraint("DistanceY", 3, 1, 3, 2, Q("10.5 mm")),
    Sketcher.Constraint("DistanceX", 0, 2, -1, 1, Q("32 mm")),
    Sketcher.Constraint("DistanceY", 0, 2, -1, 1, Q("14.2 mm")),
])
sketch15.setExpression("Constraints[27]", "Params.sketch15_width")
sketch15.setExpression("Constraints[28]", "Params.sketch15_width2")
sketch15.setExpression("Constraints[29]", "Params.sketch15_height")
sketch15.setExpression("Constraints[30]", "Params.sketch15_height2")
pad10 = doc.addObject("PartDesign::Pad", "Pad009")
body.addObject(pad10)
pad10.Profile = sketch15
pad10.setExpression("Length", "Params.pad10_length")

doc.recompute()
